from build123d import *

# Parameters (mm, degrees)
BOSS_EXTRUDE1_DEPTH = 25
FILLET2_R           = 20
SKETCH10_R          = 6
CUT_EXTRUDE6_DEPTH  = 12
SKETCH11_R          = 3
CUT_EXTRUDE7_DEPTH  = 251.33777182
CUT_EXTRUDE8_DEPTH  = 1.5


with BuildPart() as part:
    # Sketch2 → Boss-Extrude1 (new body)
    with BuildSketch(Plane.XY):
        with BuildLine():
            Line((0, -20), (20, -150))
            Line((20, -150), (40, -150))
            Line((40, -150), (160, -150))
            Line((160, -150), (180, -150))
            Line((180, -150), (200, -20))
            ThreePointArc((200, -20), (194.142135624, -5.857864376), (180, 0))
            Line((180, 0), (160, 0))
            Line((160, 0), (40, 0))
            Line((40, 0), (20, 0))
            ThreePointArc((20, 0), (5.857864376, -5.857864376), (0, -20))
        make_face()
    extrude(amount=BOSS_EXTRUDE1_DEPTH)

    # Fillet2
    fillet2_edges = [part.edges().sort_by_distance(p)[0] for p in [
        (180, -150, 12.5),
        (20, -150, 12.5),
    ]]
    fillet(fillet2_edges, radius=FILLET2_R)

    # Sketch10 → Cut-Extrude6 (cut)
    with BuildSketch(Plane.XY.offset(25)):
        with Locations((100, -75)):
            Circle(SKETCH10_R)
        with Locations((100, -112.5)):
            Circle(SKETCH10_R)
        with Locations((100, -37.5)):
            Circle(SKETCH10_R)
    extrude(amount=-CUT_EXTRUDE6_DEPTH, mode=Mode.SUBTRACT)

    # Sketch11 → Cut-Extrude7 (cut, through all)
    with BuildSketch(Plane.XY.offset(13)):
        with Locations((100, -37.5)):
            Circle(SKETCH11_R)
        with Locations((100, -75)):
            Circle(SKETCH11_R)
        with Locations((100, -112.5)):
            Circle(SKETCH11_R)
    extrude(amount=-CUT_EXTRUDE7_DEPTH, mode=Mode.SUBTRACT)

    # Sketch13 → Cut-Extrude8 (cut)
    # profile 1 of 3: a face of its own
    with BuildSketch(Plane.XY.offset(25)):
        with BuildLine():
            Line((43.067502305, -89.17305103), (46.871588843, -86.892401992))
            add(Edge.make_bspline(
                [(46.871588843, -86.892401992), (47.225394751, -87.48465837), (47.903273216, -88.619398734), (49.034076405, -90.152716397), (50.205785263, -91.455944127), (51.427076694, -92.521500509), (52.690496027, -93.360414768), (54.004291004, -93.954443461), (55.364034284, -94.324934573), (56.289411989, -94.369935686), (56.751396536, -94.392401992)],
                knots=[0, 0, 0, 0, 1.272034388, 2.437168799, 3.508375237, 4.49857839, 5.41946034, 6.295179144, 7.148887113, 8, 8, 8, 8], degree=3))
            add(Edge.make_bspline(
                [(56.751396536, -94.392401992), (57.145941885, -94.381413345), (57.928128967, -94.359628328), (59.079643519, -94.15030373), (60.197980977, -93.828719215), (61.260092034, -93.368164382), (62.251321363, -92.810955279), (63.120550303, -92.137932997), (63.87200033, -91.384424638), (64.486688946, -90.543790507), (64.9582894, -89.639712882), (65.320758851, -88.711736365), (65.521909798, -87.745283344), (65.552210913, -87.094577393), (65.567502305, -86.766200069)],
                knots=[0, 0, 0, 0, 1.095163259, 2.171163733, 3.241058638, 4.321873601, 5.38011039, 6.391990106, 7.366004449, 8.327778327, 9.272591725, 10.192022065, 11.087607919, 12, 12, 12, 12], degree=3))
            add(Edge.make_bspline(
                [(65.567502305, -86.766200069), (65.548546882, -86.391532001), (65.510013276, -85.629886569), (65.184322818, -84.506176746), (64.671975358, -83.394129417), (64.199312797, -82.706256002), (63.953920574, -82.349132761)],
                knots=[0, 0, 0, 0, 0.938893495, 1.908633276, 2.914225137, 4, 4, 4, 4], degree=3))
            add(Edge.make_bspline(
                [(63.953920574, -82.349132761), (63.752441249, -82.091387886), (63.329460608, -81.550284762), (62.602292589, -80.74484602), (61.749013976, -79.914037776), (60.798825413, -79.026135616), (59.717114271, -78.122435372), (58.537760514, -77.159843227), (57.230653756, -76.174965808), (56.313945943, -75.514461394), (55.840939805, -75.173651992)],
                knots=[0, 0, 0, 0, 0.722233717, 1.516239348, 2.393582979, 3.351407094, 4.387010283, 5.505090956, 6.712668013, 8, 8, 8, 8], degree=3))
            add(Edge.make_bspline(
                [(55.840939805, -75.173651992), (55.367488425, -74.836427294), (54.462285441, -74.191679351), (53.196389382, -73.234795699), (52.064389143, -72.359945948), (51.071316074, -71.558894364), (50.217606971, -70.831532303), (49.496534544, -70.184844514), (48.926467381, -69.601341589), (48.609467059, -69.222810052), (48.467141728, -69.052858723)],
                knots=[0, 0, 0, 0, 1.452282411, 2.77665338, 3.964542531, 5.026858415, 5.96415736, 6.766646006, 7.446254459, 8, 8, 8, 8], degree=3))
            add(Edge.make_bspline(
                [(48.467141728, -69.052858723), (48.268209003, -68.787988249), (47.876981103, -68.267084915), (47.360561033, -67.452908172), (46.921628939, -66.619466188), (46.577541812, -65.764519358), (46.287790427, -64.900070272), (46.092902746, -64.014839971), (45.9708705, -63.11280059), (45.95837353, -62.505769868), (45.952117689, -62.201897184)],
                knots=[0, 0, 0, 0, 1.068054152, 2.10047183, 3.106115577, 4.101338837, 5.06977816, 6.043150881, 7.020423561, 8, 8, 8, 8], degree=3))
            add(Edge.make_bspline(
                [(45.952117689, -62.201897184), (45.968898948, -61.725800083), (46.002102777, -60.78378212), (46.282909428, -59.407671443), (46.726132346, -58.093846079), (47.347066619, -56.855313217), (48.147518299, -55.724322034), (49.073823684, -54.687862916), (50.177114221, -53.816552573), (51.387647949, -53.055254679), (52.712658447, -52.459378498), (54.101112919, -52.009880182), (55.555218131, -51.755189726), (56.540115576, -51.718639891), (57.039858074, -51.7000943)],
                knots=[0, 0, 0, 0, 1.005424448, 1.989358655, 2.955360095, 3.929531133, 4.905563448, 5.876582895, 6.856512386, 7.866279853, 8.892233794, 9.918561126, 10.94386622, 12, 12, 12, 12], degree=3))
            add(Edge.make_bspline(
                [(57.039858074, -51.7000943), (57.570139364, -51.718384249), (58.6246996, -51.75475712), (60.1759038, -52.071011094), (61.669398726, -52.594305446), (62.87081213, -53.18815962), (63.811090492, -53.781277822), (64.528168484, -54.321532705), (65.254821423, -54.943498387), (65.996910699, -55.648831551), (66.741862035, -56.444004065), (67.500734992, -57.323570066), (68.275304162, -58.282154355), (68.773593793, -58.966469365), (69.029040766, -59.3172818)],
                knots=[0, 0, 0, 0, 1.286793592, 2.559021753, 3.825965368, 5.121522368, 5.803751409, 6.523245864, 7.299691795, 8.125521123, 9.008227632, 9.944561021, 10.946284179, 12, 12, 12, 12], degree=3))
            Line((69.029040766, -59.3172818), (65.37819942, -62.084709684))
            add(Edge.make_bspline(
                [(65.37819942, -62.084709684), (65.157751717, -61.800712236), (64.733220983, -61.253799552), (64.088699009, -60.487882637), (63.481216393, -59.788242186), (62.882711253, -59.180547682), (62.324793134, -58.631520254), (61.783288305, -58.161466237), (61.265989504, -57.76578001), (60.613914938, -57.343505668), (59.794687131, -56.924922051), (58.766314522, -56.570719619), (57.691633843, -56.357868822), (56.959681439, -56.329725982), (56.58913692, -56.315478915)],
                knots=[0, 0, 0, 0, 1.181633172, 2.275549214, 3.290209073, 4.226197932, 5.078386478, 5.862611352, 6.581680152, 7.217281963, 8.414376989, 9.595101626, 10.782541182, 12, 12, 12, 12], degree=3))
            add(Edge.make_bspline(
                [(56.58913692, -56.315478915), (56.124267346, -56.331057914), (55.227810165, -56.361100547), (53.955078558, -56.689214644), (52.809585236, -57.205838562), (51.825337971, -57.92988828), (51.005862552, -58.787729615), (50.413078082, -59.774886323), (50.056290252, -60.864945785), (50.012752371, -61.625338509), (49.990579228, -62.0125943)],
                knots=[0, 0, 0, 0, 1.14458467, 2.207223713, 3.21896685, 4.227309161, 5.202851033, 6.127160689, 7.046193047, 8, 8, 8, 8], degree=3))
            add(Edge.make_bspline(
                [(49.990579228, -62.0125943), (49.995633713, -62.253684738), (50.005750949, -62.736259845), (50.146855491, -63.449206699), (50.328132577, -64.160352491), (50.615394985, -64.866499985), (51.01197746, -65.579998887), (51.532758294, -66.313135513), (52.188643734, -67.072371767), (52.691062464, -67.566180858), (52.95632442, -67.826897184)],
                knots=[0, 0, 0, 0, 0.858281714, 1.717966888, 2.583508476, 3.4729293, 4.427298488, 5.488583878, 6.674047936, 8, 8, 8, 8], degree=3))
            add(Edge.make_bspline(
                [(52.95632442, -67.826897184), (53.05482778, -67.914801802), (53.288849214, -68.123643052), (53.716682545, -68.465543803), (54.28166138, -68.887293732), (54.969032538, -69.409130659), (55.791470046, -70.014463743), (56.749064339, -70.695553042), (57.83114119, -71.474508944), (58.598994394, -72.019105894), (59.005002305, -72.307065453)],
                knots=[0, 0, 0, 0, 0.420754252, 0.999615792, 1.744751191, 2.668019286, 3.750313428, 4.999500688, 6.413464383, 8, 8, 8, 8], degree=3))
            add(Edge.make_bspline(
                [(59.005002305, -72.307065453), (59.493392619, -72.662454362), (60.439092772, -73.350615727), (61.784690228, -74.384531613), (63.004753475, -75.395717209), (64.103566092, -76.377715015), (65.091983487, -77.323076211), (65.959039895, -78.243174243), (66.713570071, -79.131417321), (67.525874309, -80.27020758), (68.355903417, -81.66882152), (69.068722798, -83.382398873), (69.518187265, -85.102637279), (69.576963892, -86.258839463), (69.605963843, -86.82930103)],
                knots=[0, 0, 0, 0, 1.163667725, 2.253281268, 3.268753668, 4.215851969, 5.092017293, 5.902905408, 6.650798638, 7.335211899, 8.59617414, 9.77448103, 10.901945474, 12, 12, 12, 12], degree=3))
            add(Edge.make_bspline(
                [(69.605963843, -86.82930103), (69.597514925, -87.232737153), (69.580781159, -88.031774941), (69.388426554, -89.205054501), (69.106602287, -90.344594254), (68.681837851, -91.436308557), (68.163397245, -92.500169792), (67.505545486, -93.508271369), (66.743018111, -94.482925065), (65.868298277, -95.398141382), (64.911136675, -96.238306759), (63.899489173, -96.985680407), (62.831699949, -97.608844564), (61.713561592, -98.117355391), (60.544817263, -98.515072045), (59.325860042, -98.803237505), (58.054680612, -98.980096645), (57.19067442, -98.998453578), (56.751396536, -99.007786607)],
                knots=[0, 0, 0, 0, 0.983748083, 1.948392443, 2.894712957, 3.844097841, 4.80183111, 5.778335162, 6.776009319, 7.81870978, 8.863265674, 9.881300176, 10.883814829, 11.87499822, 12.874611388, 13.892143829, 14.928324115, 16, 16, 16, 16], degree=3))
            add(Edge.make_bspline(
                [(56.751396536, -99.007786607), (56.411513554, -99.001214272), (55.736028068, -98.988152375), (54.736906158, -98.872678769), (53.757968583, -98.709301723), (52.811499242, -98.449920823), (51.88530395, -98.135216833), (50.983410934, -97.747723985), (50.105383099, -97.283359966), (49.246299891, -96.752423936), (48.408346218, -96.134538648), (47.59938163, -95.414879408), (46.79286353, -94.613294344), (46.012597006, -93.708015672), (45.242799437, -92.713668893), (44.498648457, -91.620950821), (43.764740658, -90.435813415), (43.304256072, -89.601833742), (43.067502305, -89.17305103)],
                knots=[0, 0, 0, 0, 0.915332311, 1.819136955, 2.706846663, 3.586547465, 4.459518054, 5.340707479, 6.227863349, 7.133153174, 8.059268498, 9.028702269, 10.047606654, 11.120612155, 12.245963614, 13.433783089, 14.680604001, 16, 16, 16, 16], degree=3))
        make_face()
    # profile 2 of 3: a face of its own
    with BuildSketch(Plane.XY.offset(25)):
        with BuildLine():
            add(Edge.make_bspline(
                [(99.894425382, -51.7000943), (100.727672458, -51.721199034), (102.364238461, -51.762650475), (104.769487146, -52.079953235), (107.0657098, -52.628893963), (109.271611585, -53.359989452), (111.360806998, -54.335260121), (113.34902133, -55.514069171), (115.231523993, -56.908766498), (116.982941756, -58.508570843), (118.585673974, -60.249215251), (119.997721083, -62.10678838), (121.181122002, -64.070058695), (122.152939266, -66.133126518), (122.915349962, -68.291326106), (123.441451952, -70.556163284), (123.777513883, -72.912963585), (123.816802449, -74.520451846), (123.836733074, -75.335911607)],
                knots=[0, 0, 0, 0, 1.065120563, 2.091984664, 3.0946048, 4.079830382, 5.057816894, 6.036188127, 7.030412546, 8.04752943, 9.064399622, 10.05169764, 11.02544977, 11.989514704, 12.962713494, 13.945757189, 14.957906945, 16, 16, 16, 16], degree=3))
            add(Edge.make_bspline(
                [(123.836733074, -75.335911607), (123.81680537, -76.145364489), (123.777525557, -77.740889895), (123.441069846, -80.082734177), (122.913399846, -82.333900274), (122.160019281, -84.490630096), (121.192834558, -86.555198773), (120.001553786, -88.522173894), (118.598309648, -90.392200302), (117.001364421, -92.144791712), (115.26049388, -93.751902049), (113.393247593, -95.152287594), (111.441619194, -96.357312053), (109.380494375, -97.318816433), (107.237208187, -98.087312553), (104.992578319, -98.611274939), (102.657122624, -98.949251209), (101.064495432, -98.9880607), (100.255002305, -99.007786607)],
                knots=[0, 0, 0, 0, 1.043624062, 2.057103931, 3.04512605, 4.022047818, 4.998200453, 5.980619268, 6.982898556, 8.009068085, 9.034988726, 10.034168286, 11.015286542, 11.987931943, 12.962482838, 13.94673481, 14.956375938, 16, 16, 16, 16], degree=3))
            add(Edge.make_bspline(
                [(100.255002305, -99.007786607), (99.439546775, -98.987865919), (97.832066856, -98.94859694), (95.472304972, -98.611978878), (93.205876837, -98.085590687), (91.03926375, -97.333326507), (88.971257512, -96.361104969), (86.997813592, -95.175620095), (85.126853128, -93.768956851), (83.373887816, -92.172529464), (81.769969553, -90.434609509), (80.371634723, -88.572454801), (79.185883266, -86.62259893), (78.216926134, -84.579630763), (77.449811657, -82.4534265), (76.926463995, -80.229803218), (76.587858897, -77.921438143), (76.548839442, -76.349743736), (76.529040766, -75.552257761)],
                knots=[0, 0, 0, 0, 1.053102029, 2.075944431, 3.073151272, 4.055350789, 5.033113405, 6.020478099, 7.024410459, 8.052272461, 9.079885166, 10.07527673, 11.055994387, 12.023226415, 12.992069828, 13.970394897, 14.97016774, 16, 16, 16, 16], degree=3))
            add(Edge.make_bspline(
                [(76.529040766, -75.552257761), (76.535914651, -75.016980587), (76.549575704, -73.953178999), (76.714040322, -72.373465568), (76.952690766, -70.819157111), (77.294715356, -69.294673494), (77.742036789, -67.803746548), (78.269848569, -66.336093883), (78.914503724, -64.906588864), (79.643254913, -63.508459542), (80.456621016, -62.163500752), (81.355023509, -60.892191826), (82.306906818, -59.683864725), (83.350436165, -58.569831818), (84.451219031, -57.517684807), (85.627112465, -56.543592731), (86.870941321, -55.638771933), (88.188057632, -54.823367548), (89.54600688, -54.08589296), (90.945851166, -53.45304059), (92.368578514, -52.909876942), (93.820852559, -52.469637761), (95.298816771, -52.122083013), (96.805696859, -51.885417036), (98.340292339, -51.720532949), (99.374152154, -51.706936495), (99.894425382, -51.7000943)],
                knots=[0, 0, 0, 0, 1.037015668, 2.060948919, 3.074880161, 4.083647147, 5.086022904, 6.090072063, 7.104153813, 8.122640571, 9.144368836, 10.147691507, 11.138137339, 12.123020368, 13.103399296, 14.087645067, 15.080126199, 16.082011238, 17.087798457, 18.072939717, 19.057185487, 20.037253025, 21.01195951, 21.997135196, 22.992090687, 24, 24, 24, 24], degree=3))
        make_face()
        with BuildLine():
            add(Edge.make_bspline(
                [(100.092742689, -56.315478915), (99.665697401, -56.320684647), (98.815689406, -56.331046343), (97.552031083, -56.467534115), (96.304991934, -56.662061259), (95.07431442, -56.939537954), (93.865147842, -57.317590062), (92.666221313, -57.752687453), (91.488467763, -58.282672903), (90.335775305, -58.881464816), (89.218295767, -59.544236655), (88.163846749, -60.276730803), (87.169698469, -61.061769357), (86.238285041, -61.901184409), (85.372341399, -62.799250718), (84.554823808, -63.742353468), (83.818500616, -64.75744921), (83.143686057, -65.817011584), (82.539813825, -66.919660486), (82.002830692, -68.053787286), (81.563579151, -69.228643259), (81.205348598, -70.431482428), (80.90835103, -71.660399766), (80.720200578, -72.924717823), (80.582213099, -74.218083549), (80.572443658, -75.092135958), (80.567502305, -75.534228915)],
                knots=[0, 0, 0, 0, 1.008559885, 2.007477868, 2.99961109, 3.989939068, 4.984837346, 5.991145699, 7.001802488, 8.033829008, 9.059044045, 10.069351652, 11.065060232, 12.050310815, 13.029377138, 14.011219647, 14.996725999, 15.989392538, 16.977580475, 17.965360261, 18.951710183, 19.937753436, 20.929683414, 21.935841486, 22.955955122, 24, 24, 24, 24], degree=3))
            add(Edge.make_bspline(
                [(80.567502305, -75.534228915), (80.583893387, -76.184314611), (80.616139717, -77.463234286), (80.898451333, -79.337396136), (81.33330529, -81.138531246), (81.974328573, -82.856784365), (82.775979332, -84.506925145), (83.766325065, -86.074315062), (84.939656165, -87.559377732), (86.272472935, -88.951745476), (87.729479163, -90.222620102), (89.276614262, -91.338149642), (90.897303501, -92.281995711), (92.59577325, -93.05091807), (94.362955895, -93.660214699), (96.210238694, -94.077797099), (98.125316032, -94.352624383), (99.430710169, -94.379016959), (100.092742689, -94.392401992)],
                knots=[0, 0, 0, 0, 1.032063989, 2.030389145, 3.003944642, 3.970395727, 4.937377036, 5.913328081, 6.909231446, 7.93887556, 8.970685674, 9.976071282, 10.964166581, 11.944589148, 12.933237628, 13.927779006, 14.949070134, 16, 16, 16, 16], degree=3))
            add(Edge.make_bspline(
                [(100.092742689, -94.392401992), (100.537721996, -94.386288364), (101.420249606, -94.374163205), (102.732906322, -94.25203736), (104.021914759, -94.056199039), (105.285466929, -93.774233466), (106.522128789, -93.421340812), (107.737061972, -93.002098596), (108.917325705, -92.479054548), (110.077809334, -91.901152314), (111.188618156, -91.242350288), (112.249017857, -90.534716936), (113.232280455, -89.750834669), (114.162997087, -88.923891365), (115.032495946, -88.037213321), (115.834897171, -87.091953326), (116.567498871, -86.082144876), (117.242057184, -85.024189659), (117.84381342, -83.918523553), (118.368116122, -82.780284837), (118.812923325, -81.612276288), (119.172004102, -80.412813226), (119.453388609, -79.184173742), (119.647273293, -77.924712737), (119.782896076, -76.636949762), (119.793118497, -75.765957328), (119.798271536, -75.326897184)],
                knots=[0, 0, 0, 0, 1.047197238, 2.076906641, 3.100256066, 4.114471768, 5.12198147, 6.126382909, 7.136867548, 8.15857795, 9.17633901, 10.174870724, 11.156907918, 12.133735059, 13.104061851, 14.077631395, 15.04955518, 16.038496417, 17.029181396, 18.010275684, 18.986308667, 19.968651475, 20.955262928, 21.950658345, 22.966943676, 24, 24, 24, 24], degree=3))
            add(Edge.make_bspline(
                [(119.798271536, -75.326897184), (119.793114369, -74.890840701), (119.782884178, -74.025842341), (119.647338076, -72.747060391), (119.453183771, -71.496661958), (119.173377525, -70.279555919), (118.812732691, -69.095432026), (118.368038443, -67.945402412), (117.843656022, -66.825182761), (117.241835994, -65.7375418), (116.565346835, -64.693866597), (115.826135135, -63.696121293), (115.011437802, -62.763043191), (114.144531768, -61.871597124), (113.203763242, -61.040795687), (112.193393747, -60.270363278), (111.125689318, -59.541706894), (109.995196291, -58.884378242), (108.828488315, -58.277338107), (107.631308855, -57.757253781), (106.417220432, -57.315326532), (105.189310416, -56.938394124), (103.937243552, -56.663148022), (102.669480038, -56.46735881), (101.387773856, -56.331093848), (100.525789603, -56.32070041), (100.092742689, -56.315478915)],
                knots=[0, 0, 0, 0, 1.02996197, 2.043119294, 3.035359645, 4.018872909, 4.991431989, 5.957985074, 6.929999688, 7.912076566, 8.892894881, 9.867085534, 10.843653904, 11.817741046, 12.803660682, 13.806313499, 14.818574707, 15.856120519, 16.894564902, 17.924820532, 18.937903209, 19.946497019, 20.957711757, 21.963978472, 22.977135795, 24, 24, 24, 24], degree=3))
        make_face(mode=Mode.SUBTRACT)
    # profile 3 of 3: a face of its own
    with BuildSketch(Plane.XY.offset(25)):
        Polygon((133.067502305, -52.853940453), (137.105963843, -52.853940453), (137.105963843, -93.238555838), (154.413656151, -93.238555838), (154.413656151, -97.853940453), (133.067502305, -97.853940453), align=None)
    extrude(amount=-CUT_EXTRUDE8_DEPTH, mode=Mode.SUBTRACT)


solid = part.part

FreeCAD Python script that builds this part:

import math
import FreeCAD as App
import Part
import Sketcher
Q = App.Units.Quantity


def edges_at(feature, points):
    """Names of the edges that pass closest to the given points."""
    edges = feature.Shape.Edges
    near = lambda p: min(range(len(edges)), key=lambda i: edges[i].distToShape(Part.Vertex(*p))[0])
    return sorted({f"Edge{near(p) + 1}" for p in points})

doc = App.newDocument("Part")
body = doc.addObject("PartDesign::Body", "Body")

# Sketch on XY plane
sketch1 = body.newObject("Sketcher::SketchObject", "Sketch")
sketch1.AttachmentSupport = (doc.getObject("XY_Plane"), [""])
sketch1.MapMode = "FlatFace"
sketch1.addGeometry(Part.LineSegment(App.Vector(0, -20, 0), App.Vector(20, -150, 0)), False)
sketch1.addGeometry(Part.LineSegment(App.Vector(20, -150, 0), App.Vector(180, -150, 0)), False)
sketch1.addGeometry(Part.LineSegment(App.Vector(180, -150, 0), App.Vector(200, -20, 0)), False)
sketch1.addGeometry(Part.ArcOfCircle(Part.Circle(App.Vector(180, -20, 0), App.Vector(0, 0, 1), 20), math.radians(0), math.radians(90)), False)
sketch1.addGeometry(Part.LineSegment(App.Vector(180, 0, 0), App.Vector(20, 0, 0)), False)
sketch1.addGeometry(Part.ArcOfCircle(Part.Circle(App.Vector(20, -20, 0), App.Vector(0, 0, 1), 20), math.radians(90), math.radians(180)), False)
sketch1.addConstraint(Sketcher.Constraint("Coincident", 0, 2, 1, 1))
sketch1.addConstraint(Sketcher.Constraint("Coincident", 1, 2, 2, 1))
sketch1.addConstraint(Sketcher.Constraint("Coincident", 2, 2, 3, 1))
sketch1.addConstraint(Sketcher.Constraint("Tangent", 3, 2, 4, 1))
sketch1.addConstraint(Sketcher.Constraint("Tangent", 4, 2, 5, 1))
sketch1.addConstraint(Sketcher.Constraint("Coincident", 5, 2, 0, 1))
sketch1.addConstraint(Sketcher.Constraint("Horizontal", 1))
sketch1.addConstraint(Sketcher.Constraint("Horizontal", 4))
sketch1.addConstraint(Sketcher.Constraint("Equal", 3, 5))
sketch1.addConstraint(Sketcher.Constraint("PointOnObject", 3, 2, -1))
sketch1.addConstraint(Sketcher.Constraint("PointOnObject", 5, 2, -2))
sketch1.addConstraint(Sketcher.Constraint("Horizontal", 5, 3, 2, 2))
sketch1.addConstraint(Sketcher.Constraint("Horizontal", 2, 2, 5, 2))
sketch1.addConstraint(Sketcher.Constraint("Vertical", 5, 3, 0, 2))
sketch1.addConstraint(Sketcher.Constraint("Vertical", 3, 3, 1, 2))
sketch1.addConstraint(Sketcher.Constraint("Radius", 3, Q("20 mm")))
sketch1.addConstraint(Sketcher.Constraint("DistanceX", 1, 1, 1, 2, Q("160 mm")))
sketch1.addConstraint(Sketcher.Constraint("DistanceY", 0, 2, -1, 1, Q("150 mm")))
pad1 = body.newObject("PartDesign::Pad", "Pad")
pad1.Profile = sketch1
pad1.Length = 25
doc.recompute()

fillet = body.newObject("PartDesign::Fillet", "Fillet")
fillet.Base = (pad1, edges_at(pad1, [(180, -150, 12.5), (20, -150, 12.5)]))
fillet.Radius = 20

# Sketch on XY plane
sketch2 = body.newObject("Sketcher::SketchObject", "Sketch001")
sketch2.AttachmentSupport = (doc.getObject("XY_Plane"), [""])
sketch2.MapMode = "FlatFace"
sketch2.AttachmentOffset = App.Placement(App.Vector(0, 0, 25), App.Rotation())
sketch2.addGeometry(Part.Circle(App.Vector(100, -75, 0), App.Vector(0, 0, 1), 6), False)
sketch2.addGeometry(Part.Circle(App.Vector(100, -112.5, 0), App.Vector(0, 0, 1), 6), False)
sketch2.addGeometry(Part.Circle(App.Vector(100, -37.5, 0), App.Vector(0, 0, 1), 6), False)
sketch2.addConstraint(Sketcher.Constraint("Equal", 0, 1))
sketch2.addConstraint(Sketcher.Constraint("Equal", 1, 2))
sketch2.addConstraint(Sketcher.Constraint("Vertical", 0, 3, 1, 3))
sketch2.addConstraint(Sketcher.Constraint("Vertical", 1, 3, 2, 3))
sketch2.addConstraint(Sketcher.Constraint("Diameter", 0, Q("12 mm")))
sketch2.addConstraint(Sketcher.Constraint("DistanceX", -1, 1, 0, 3, Q("100 mm")))
sketch2.addConstraint(Sketcher.Constraint("DistanceY", 0, 3, -1, 1, Q("75 mm")))
sketch2.addConstraint(Sketcher.Constraint("DistanceY", 1, 3, 2, 3, Q("75 mm")))
sketch2.addConstraint(Sketcher.Constraint("DistanceY", 1, 3, -1, 1, Q("112.5 mm")))
pocket1 = body.newObject("PartDesign::Pocket", "Pocket")
pocket1.Profile = sketch2
pocket1.Length = 12

# Sketch on XY plane
sketch3 = body.newObject("Sketcher::SketchObject", "Sketch002")
sketch3.AttachmentSupport = (doc.getObject("XY_Plane"), [""])
sketch3.MapMode = "FlatFace"
sketch3.AttachmentOffset = App.Placement(App.Vector(0, 0, 13), App.Rotation())
sketch3.addGeometry(Part.Circle(App.Vector(100, -37.5, 0), App.Vector(0, 0, 1), 3), False)
sketch3.addGeometry(Part.Circle(App.Vector(100, -75, 0), App.Vector(0, 0, 1), 3), False)
sketch3.addGeometry(Part.Circle(App.Vector(100, -112.5, 0), App.Vector(0, 0, 1), 3), False)
sketch3.addConstraint(Sketcher.Constraint("Equal", 0, 1))
sketch3.addConstraint(Sketcher.Constraint("Equal", 1, 2))
sketch3.addConstraint(Sketcher.Constraint("Vertical", 0, 3, 1, 3))
sketch3.addConstraint(Sketcher.Constraint("Vertical", 1, 3, 2, 3))
sketch3.addConstraint(Sketcher.Constraint("Diameter", 0, Q("6 mm")))
sketch3.addConstraint(Sketcher.Constraint("DistanceX", -1, 1, 0, 3, Q("100 mm")))
sketch3.addConstraint(Sketcher.Constraint("DistanceY", 1, 3, -1, 1, Q("75 mm")))
sketch3.addConstraint(Sketcher.Constraint("DistanceY", 2, 3, 0, 3, Q("75 mm")))
sketch3.addConstraint(Sketcher.Constraint("DistanceY", 0, 3, -1, 1, Q("37.5 mm")))
pocket2 = body.newObject("PartDesign::Pocket", "Pocket001")
pocket2.Profile = sketch3
pocket2.Type = "ThroughAll"

# Sketch on XY plane
sketch4 = body.newObject("Sketcher::SketchObject", "Sketch003")
sketch4.AttachmentSupport = (doc.getObject("XY_Plane"), [""])
sketch4.MapMode = "FlatFace"
sketch4.AttachmentOffset = App.Placement(App.Vector(0, 0, 25), App.Rotation())
sketch4.addGeometry(Part.LineSegment(App.Vector(46.871589, -86.892402, 0), App.Vector(43.067502, -89.173051, 0)), False)
sketch4.addGeometry(Part.BSplineCurve([App.Vector(56.751397, -99.007787, 0), App.Vector(56.411514, -99.001214, 0), App.Vector(55.736028, -98.988152, 0), App.Vector(54.736906, -98.872679, 0), App.Vector(53.757969, -98.709302, 0), App.Vector(52.811499, -98.449921, 0), App.Vector(51.885304, -98.135217, 0), App.Vector(50.983411, -97.747724, 0), App.Vector(50.105383, -97.28336, 0), App.Vector(49.2463, -96.752424, 0), App.Vector(48.408346, -96.134539, 0), App.Vector(47.599382, -95.414879, 0), App.Vector(46.792864, -94.613294, 0), App.Vector(46.012597, -93.708016, 0), App.Vector(45.242799, -92.713669, 0), App.Vector(44.498648, -91.620951, 0), App.Vector(43.764741, -90.435813, 0), App.Vector(43.304256, -89.601834, 0), App.Vector(43.067502, -89.173051, 0)], [4, 1, 1, 1, 1, 1, 1, 1, 1, 1, 1, 1, 1, 1, 1, 1, 4], [0, 0.915332311, 1.819136955, 2.706846663, 3.586547465, 4.459518054, 5.340707479, 6.227863349, 7.133153174, 8.059268498, 9.028702269, 10.047606654, 11.120612155, 12.245963614, 13.433783089, 14.680604001, 16], False, 3, [1, 1, 1, 1, 1, 1, 1, 1, 1, 1, 1, 1, 1, 1, 1, 1, 1, 1, 1], False), False)
sketch4.addGeometry(Part.BSplineCurve([App.Vector(69.605964, -86.829301, 0), App.Vector(69.597515, -87.232737, 0), App.Vector(69.580781, -88.031775, 0), App.Vector(69.388427, -89.205055, 0), App.Vector(69.106602, -90.344594, 0), App.Vector(68.681838, -91.436309, 0), App.Vector(68.163397, -92.50017, 0), App.Vector(67.505545, -93.508271, 0), App.Vector(66.743018, -94.482925, 0), App.Vector(65.868298, -95.398141, 0), App.Vector(64.911137, -96.238307, 0), App.Vector(63.899489, -96.98568, 0), App.Vector(62.8317, -97.608845, 0), App.Vector(61.713562, -98.117355, 0), App.Vector(60.544817, -98.515072, 0), App.Vector(59.32586, -98.803238, 0), App.Vector(58.054681, -98.980097, 0), App.Vector(57.190674, -98.998454, 0), App.Vector(56.751397, -99.007787, 0)], [4, 1, 1, 1, 1, 1, 1, 1, 1, 1, 1, 1, 1, 1, 1, 1, 4], [0, 0.983748083, 1.948392443, 2.894712957, 3.844097841, 4.80183111, 5.778335162, 6.776009319, 7.81870978, 8.863265674, 9.881300176, 10.883814829, 11.87499822, 12.874611388, 13.892143829, 14.928324115, 16], False, 3, [1, 1, 1, 1, 1, 1, 1, 1, 1, 1, 1, 1, 1, 1, 1, 1, 1, 1, 1], False), False)
sketch4.addGeometry(Part.BSplineCurve([App.Vector(59.005002, -72.307065, 0), App.Vector(59.493393, -72.662454, 0), App.Vector(60.439093, -73.350616, 0), App.Vector(61.78469, -74.384532, 0), App.Vector(63.004753, -75.395717, 0), App.Vector(64.103566, -76.377715, 0), App.Vector(65.091983, -77.323076, 0), App.Vector(65.95904, -78.243174, 0), App.Vector(66.71357, -79.131417, 0), App.Vector(67.525874, -80.270208, 0), App.Vector(68.355903, -81.668822, 0), App.Vector(69.068723, -83.382399, 0), App.Vector(69.518187, -85.102637, 0), App.Vector(69.576964, -86.258839, 0), App.Vector(69.605964, -86.829301, 0)], [4, 1, 1, 1, 1, 1, 1, 1, 1, 1, 1, 1, 4], [0, 1.163667725, 2.253281268, 3.268753668, 4.215851969, 5.092017293, 5.902905408, 6.650798638, 7.335211899, 8.59617414, 9.77448103, 10.901945474, 12], False, 3, [1, 1, 1, 1, 1, 1, 1, 1, 1, 1, 1, 1, 1, 1, 1], False), False)
sketch4.addGeometry(Part.BSplineCurve([App.Vector(52.956324, -67.826897, 0), App.Vector(53.054828, -67.914802, 0), App.Vector(53.288849, -68.123643, 0), App.Vector(53.716683, -68.465544, 0), App.Vector(54.281661, -68.887294, 0), App.Vector(54.969033, -69.409131, 0), App.Vector(55.79147, -70.014464, 0), App.Vector(56.749064, -70.695553, 0), App.Vector(57.831141, -71.474509, 0), App.Vector(58.598994, -72.019106, 0), App.Vector(59.005002, -72.307065, 0)], [4, 1, 1, 1, 1, 1, 1, 1, 4], [0, 0.420754252, 0.999615792, 1.744751191, 2.668019286, 3.750313428, 4.999500688, 6.413464383, 8], False, 3, [1, 1, 1, 1, 1, 1, 1, 1, 1, 1, 1], False), False)
sketch4.addGeometry(Part.BSplineCurve([App.Vector(49.990579, -62.012594, 0), App.Vector(49.995634, -62.253685, 0), App.Vector(50.005751, -62.73626, 0), App.Vector(50.146855, -63.449207, 0), App.Vector(50.328133, -64.160352, 0), App.Vector(50.615395, -64.8665, 0), App.Vector(51.011977, -65.579999, 0), App.Vector(51.532758, -66.313136, 0), App.Vector(52.188644, -67.072372, 0), App.Vector(52.691062, -67.566181, 0), App.Vector(52.956324, -67.826897, 0)], [4, 1, 1, 1, 1, 1, 1, 1, 4], [0, 0.858281714, 1.717966888, 2.583508476, 3.4729293, 4.427298488, 5.488583878, 6.674047936, 8], False, 3, [1, 1, 1, 1, 1, 1, 1, 1, 1, 1, 1], False), False)
sketch4.addGeometry(Part.BSplineCurve([App.Vector(56.589137, -56.315479, 0), App.Vector(56.124267, -56.331058, 0), App.Vector(55.22781, -56.361101, 0), App.Vector(53.955079, -56.689215, 0), App.Vector(52.809585, -57.205839, 0), App.Vector(51.825338, -57.929888, 0), App.Vector(51.005863, -58.78773, 0), App.Vector(50.413078, -59.774886, 0), App.Vector(50.05629, -60.864946, 0), App.Vector(50.012752, -61.625339, 0), App.Vector(49.990579, -62.012594, 0)], [4, 1, 1, 1, 1, 1, 1, 1, 4], [0, 1.14458467, 2.207223713, 3.21896685, 4.227309161, 5.202851033, 6.127160689, 7.046193047, 8], False, 3, [1, 1, 1, 1, 1, 1, 1, 1, 1, 1, 1], False), False)
sketch4.addGeometry(Part.BSplineCurve([App.Vector(65.378199, -62.08471, 0), App.Vector(65.157752, -61.800712, 0), App.Vector(64.733221, -61.2538, 0), App.Vector(64.088699, -60.487883, 0), App.Vector(63.481216, -59.788242, 0), App.Vector(62.882711, -59.180548, 0), App.Vector(62.324793, -58.63152, 0), App.Vector(61.783288, -58.161466, 0), App.Vector(61.26599, -57.76578, 0), App.Vector(60.613915, -57.343506, 0), App.Vector(59.794687, -56.924922, 0), App.Vector(58.766315, -56.57072, 0), App.Vector(57.691634, -56.357869, 0), App.Vector(56.959681, -56.329726, 0), App.Vector(56.589137, -56.315479, 0)], [4, 1, 1, 1, 1, 1, 1, 1, 1, 1, 1, 1, 4], [0, 1.181633172, 2.275549214, 3.290209073, 4.226197932, 5.078386478, 5.862611352, 6.581680152, 7.217281963, 8.414376989, 9.595101626, 10.782541182, 12], False, 3, [1, 1, 1, 1, 1, 1, 1, 1, 1, 1, 1, 1, 1, 1, 1], False), False)
sketch4.addGeometry(Part.LineSegment(App.Vector(65.378199, -62.08471, 0), App.Vector(69.029041, -59.317282, 0)), False)
sketch4.addGeometry(Part.BSplineCurve([App.Vector(57.039858, -51.700094, 0), App.Vector(57.570139, -51.718384, 0), App.Vector(58.6247, -51.754757, 0), App.Vector(60.175904, -52.071011, 0), App.Vector(61.669399, -52.594305, 0), App.Vector(62.870812, -53.18816, 0), App.Vector(63.81109, -53.781278, 0), App.Vector(64.528168, -54.321533, 0), App.Vector(65.254821, -54.943498, 0), App.Vector(65.996911, -55.648832, 0), App.Vector(66.741862, -56.444004, 0), App.Vector(67.500735, -57.32357, 0), App.Vector(68.275304, -58.282154, 0), App.Vector(68.773594, -58.966469, 0), App.Vector(69.029041, -59.317282, 0)], [4, 1, 1, 1, 1, 1, 1, 1, 1, 1, 1, 1, 4], [0, 1.286793592, 2.559021753, 3.825965368, 5.121522368, 5.803751409, 6.523245864, 7.299691795, 8.125521123, 9.008227632, 9.944561021, 10.946284179, 12], False, 3, [1, 1, 1, 1, 1, 1, 1, 1, 1, 1, 1, 1, 1, 1, 1], False), False)
sketch4.addGeometry(Part.BSplineCurve([App.Vector(45.952118, -62.201897, 0), App.Vector(45.968899, -61.7258, 0), App.Vector(46.002103, -60.783782, 0), App.Vector(46.282909, -59.407671, 0), App.Vector(46.726132, -58.093846, 0), App.Vector(47.347067, -56.855313, 0), App.Vector(48.147518, -55.724322, 0), App.Vector(49.073824, -54.687863, 0), App.Vector(50.177114, -53.816553, 0), App.Vector(51.387648, -53.055255, 0), App.Vector(52.712658, -52.459378, 0), App.Vector(54.101113, -52.00988, 0), App.Vector(55.555218, -51.75519, 0), App.Vector(56.540116, -51.71864, 0), App.Vector(57.039858, -51.700094, 0)], [4, 1, 1, 1, 1, 1, 1, 1, 1, 1, 1, 1, 4], [0, 1.005424448, 1.989358655, 2.955360095, 3.929531133, 4.905563448, 5.876582895, 6.856512386, 7.866279853, 8.892233794, 9.918561126, 10.94386622, 12], False, 3, [1, 1, 1, 1, 1, 1, 1, 1, 1, 1, 1, 1, 1, 1, 1], False), False)
sketch4.addGeometry(Part.BSplineCurve([App.Vector(48.467142, -69.052859, 0), App.Vector(48.268209, -68.787988, 0), App.Vector(47.876981, -68.267085, 0), App.Vector(47.360561, -67.452908, 0), App.Vector(46.921629, -66.619466, 0), App.Vector(46.577542, -65.764519, 0), App.Vector(46.28779, -64.90007, 0), App.Vector(46.092903, -64.01484, 0), App.Vector(45.97087, -63.112801, 0), App.Vector(45.958374, -62.50577, 0), App.Vector(45.952118, -62.201897, 0)], [4, 1, 1, 1, 1, 1, 1, 1, 4], [0, 1.068054152, 2.10047183, 3.106115577, 4.101338837, 5.06977816, 6.043150881, 7.020423561, 8], False, 3, [1, 1, 1, 1, 1, 1, 1, 1, 1, 1, 1], False), False)
sketch4.addGeometry(Part.BSplineCurve([App.Vector(55.84094, -75.173652, 0), App.Vector(55.367488, -74.836427, 0), App.Vector(54.462285, -74.191679, 0), App.Vector(53.196389, -73.234796, 0), App.Vector(52.064389, -72.359946, 0), App.Vector(51.071316, -71.558894, 0), App.Vector(50.217607, -70.831532, 0), App.Vector(49.496535, -70.184845, 0), App.Vector(48.926467, -69.601342, 0), App.Vector(48.609467, -69.22281, 0), App.Vector(48.467142, -69.052859, 0)], [4, 1, 1, 1, 1, 1, 1, 1, 4], [0, 1.452282411, 2.77665338, 3.964542531, 5.026858415, 5.96415736, 6.766646006, 7.446254459, 8], False, 3, [1, 1, 1, 1, 1, 1, 1, 1, 1, 1, 1], False), False)
sketch4.addGeometry(Part.BSplineCurve([App.Vector(63.953921, -82.349133, 0), App.Vector(63.752441, -82.091388, 0), App.Vector(63.329461, -81.550285, 0), App.Vector(62.602293, -80.744846, 0), App.Vector(61.749014, -79.914038, 0), App.Vector(60.798825, -79.026136, 0), App.Vector(59.717114, -78.122435, 0), App.Vector(58.537761, -77.159843, 0), App.Vector(57.230654, -76.174966, 0), App.Vector(56.313946, -75.514461, 0), App.Vector(55.84094, -75.173652, 0)], [4, 1, 1, 1, 1, 1, 1, 1, 4], [0, 0.722233717, 1.516239348, 2.393582979, 3.351407094, 4.387010283, 5.505090956, 6.712668013, 8], False, 3, [1, 1, 1, 1, 1, 1, 1, 1, 1, 1, 1], False), False)
sketch4.addGeometry(Part.BSplineCurve([App.Vector(65.567502, -86.7662, 0), App.Vector(65.548547, -86.391532, 0), App.Vector(65.510013, -85.629887, 0), App.Vector(65.184323, -84.506177, 0), App.Vector(64.671975, -83.394129, 0), App.Vector(64.199313, -82.706256, 0), App.Vector(63.953921, -82.349133, 0)], [4, 1, 1, 1, 4], [0, 0.938893495, 1.908633276, 2.914225137, 4], False, 3, [1, 1, 1, 1, 1, 1, 1], False), False)
sketch4.addGeometry(Part.BSplineCurve([App.Vector(56.751397, -94.392402, 0), App.Vector(57.145942, -94.381413, 0), App.Vector(57.928129, -94.359628, 0), App.Vector(59.079644, -94.150304, 0), App.Vector(60.197981, -93.828719, 0), App.Vector(61.260092, -93.368164, 0), App.Vector(62.251321, -92.810955, 0), App.Vector(63.12055, -92.137933, 0), App.Vector(63.872, -91.384425, 0), App.Vector(64.486689, -90.543791, 0), App.Vector(64.958289, -89.639713, 0), App.Vector(65.320759, -88.711736, 0), App.Vector(65.52191, -87.745283, 0), App.Vector(65.552211, -87.094577, 0), App.Vector(65.567502, -86.7662, 0)], [4, 1, 1, 1, 1, 1, 1, 1, 1, 1, 1, 1, 4], [0, 1.095163259, 2.171163733, 3.241058638, 4.321873601, 5.38011039, 6.391990106, 7.366004449, 8.327778327, 9.272591725, 10.192022065, 11.087607919, 12], False, 3, [1, 1, 1, 1, 1, 1, 1, 1, 1, 1, 1, 1, 1, 1, 1], False), False)
sketch4.addGeometry(Part.BSplineCurve([App.Vector(46.871589, -86.892402, 0), App.Vector(47.225395, -87.484658, 0), App.Vector(47.903273, -88.619399, 0), App.Vector(49.034076, -90.152716, 0), App.Vector(50.205785, -91.455944, 0), App.Vector(51.427077, -92.521501, 0), App.Vector(52.690496, -93.360415, 0), App.Vector(54.004291, -93.954443, 0), App.Vector(55.364034, -94.324935, 0), App.Vector(56.289412, -94.369936, 0), App.Vector(56.751397, -94.392402, 0)], [4, 1, 1, 1, 1, 1, 1, 1, 4], [0, 1.272034388, 2.437168799, 3.508375237, 4.49857839, 5.41946034, 6.295179144, 7.148887113, 8], False, 3, [1, 1, 1, 1, 1, 1, 1, 1, 1, 1, 1], False), False)
sketch4.addGeometry(Part.BSplineCurve([App.Vector(99.894425, -51.700094, 0), App.Vector(100.727672, -51.721199, 0), App.Vector(102.364238, -51.76265, 0), App.Vector(104.769487, -52.079953, 0), App.Vector(107.06571, -52.628894, 0), App.Vector(109.271612, -53.359989, 0), App.Vector(111.360807, -54.33526, 0), App.Vector(113.349021, -55.514069, 0), App.Vector(115.231524, -56.908766, 0), App.Vector(116.982942, -58.508571, 0), App.Vector(118.585674, -60.249215, 0), App.Vector(119.997721, -62.106788, 0), App.Vector(121.181122, -64.070059, 0), App.Vector(122.152939, -66.133127, 0), App.Vector(122.91535, -68.291326, 0), App.Vector(123.441452, -70.556163, 0), App.Vector(123.777514, -72.912964, 0), App.Vector(123.816802, -74.520452, 0), App.Vector(123.836733, -75.335912, 0)], [4, 1, 1, 1, 1, 1, 1, 1, 1, 1, 1, 1, 1, 1, 1, 1, 4], [0, 1.065120563, 2.091984664, 3.0946048, 4.079830382, 5.057816894, 6.036188127, 7.030412546, 8.04752943, 9.064399622, 10.05169764, 11.02544977, 11.989514704, 12.962713494, 13.945757189, 14.957906945, 16], False, 3, [1, 1, 1, 1, 1, 1, 1, 1, 1, 1, 1, 1, 1, 1, 1, 1, 1, 1, 1], False), False)
sketch4.addGeometry(Part.BSplineCurve([App.Vector(76.529041, -75.552258, 0), App.Vector(76.535915, -75.016981, 0), App.Vector(76.549576, -73.953179, 0), App.Vector(76.71404, -72.373466, 0), App.Vector(76.952691, -70.819157, 0), App.Vector(77.294715, -69.294673, 0), App.Vector(77.742037, -67.803747, 0), App.Vector(78.269849, -66.336094, 0), App.Vector(78.914504, -64.906589, 0), App.Vector(79.643255, -63.50846, 0), App.Vector(80.456621, -62.163501, 0), App.Vector(81.355024, -60.892192, 0), App.Vector(82.306907, -59.683865, 0), App.Vector(83.350436, -58.569832, 0), App.Vector(84.451219, -57.517685, 0), App.Vector(85.627112, -56.543593, 0), App.Vector(86.870941, -55.638772, 0), App.Vector(88.188058, -54.823368, 0), App.Vector(89.546007, -54.085893, 0), App.Vector(90.945851, -53.453041, 0), App.Vector(92.368579, -52.909877, 0), App.Vector(93.820853, -52.469638, 0), App.Vector(95.298817, -52.122083, 0), App.Vector(96.805697, -51.885417, 0), App.Vector(98.340292, -51.720533, 0), App.Vector(99.374152, -51.706936, 0), App.Vector(99.894425, -51.700094, 0)], [4, 1, 1, 1, 1, 1, 1, 1, 1, 1, 1, 1, 1, 1, 1, 1, 1, 1, 1, 1, 1, 1, 1, 1, 4], [0, 1.037015668, 2.060948919, 3.074880161, 4.083647147, 5.086022904, 6.090072063, 7.104153813, 8.122640571, 9.144368836, 10.147691507, 11.138137339, 12.123020368, 13.103399296, 14.087645067, 15.080126199, 16.082011238, 17.087798457, 18.072939717, 19.057185487, 20.037253025, 21.01195951, 21.997135196, 22.992090687, 24], False, 3, [1, 1, 1, 1, 1, 1, 1, 1, 1, 1, 1, 1, 1, 1, 1, 1, 1, 1, 1, 1, 1, 1, 1, 1, 1, 1, 1], False), False)
sketch4.addGeometry(Part.BSplineCurve([App.Vector(100.255002, -99.007787, 0), App.Vector(99.439547, -98.987866, 0), App.Vector(97.832067, -98.948597, 0), App.Vector(95.472305, -98.611979, 0), App.Vector(93.205877, -98.085591, 0), App.Vector(91.039264, -97.333327, 0), App.Vector(88.971258, -96.361105, 0), App.Vector(86.997814, -95.17562, 0), App.Vector(85.126853, -93.768957, 0), App.Vector(83.373888, -92.172529, 0), App.Vector(81.76997, -90.43461, 0), App.Vector(80.371635, -88.572455, 0), App.Vector(79.185883, -86.622599, 0), App.Vector(78.216926, -84.579631, 0), App.Vector(77.449812, -82.453427, 0), App.Vector(76.926464, -80.229803, 0), App.Vector(76.587859, -77.921438, 0), App.Vector(76.548839, -76.349744, 0), App.Vector(76.529041, -75.552258, 0)], [4, 1, 1, 1, 1, 1, 1, 1, 1, 1, 1, 1, 1, 1, 1, 1, 4], [0, 1.053102029, 2.075944431, 3.073151272, 4.055350789, 5.033113405, 6.020478099, 7.024410459, 8.052272461, 9.079885166, 10.07527673, 11.055994387, 12.023226415, 12.992069828, 13.970394897, 14.97016774, 16], False, 3, [1, 1, 1, 1, 1, 1, 1, 1, 1, 1, 1, 1, 1, 1, 1, 1, 1, 1, 1], False), False)
sketch4.addGeometry(Part.BSplineCurve([App.Vector(123.836733, -75.335912, 0), App.Vector(123.816805, -76.145364, 0), App.Vector(123.777526, -77.74089, 0), App.Vector(123.44107, -80.082734, 0), App.Vector(122.9134, -82.3339, 0), App.Vector(122.160019, -84.49063, 0), App.Vector(121.192835, -86.555199, 0), App.Vector(120.001554, -88.522174, 0), App.Vector(118.59831, -90.3922, 0), App.Vector(117.001364, -92.144792, 0), App.Vector(115.260494, -93.751902, 0), App.Vector(113.393248, -95.152288, 0), App.Vector(111.441619, -96.357312, 0), App.Vector(109.380494, -97.318816, 0), App.Vector(107.237208, -98.087313, 0), App.Vector(104.992578, -98.611275, 0), App.Vector(102.657123, -98.949251, 0), App.Vector(101.064495, -98.988061, 0), App.Vector(100.255002, -99.007787, 0)], [4, 1, 1, 1, 1, 1, 1, 1, 1, 1, 1, 1, 1, 1, 1, 1, 4], [0, 1.043624062, 2.057103931, 3.04512605, 4.022047818, 4.998200453, 5.980619268, 6.982898556, 8.009068085, 9.034988726, 10.034168286, 11.015286542, 11.987931943, 12.962482838, 13.94673481, 14.956375938, 16], False, 3, [1, 1, 1, 1, 1, 1, 1, 1, 1, 1, 1, 1, 1, 1, 1, 1, 1, 1, 1], False), False)
sketch4.addGeometry(Part.BSplineCurve([App.Vector(119.798272, -75.326897, 0), App.Vector(119.793114, -74.890841, 0), App.Vector(119.782884, -74.025842, 0), App.Vector(119.647338, -72.74706, 0), App.Vector(119.453184, -71.496662, 0), App.Vector(119.173378, -70.279556, 0), App.Vector(118.812733, -69.095432, 0), App.Vector(118.368038, -67.945402, 0), App.Vector(117.843656, -66.825183, 0), App.Vector(117.241836, -65.737542, 0), App.Vector(116.565347, -64.693867, 0), App.Vector(115.826135, -63.696121, 0), App.Vector(115.011438, -62.763043, 0), App.Vector(114.144532, -61.871597, 0), App.Vector(113.203763, -61.040796, 0), App.Vector(112.193394, -60.270363, 0), App.Vector(111.125689, -59.541707, 0), App.Vector(109.995196, -58.884378, 0), App.Vector(108.828488, -58.277338, 0), App.Vector(107.631309, -57.757254, 0), App.Vector(106.41722, -57.315327, 0), App.Vector(105.18931, -56.938394, 0), App.Vector(103.937244, -56.663148, 0), App.Vector(102.66948, -56.467359, 0), App.Vector(101.387774, -56.331094, 0), App.Vector(100.52579, -56.3207, 0), App.Vector(100.092743, -56.315479, 0)], [4, 1, 1, 1, 1, 1, 1, 1, 1, 1, 1, 1, 1, 1, 1, 1, 1, 1, 1, 1, 1, 1, 1, 1, 4], [0, 1.02996197, 2.043119294, 3.035359645, 4.018872909, 4.991431989, 5.957985074, 6.929999688, 7.912076566, 8.892894881, 9.867085534, 10.843653904, 11.817741046, 12.803660682, 13.806313499, 14.818574707, 15.856120519, 16.894564902, 17.924820532, 18.937903209, 19.946497019, 20.957711757, 21.963978472, 22.977135795, 24], False, 3, [1, 1, 1, 1, 1, 1, 1, 1, 1, 1, 1, 1, 1, 1, 1, 1, 1, 1, 1, 1, 1, 1, 1, 1, 1, 1, 1], False), False)
sketch4.addGeometry(Part.BSplineCurve([App.Vector(100.092743, -94.392402, 0), App.Vector(100.537722, -94.386288, 0), App.Vector(101.42025, -94.374163, 0), App.Vector(102.732906, -94.252037, 0), App.Vector(104.021915, -94.056199, 0), App.Vector(105.285467, -93.774233, 0), App.Vector(106.522129, -93.421341, 0), App.Vector(107.737062, -93.002099, 0), App.Vector(108.917326, -92.479055, 0), App.Vector(110.077809, -91.901152, 0), App.Vector(111.188618, -91.24235, 0), App.Vector(112.249018, -90.534717, 0), App.Vector(113.23228, -89.750835, 0), App.Vector(114.162997, -88.923891, 0), App.Vector(115.032496, -88.037213, 0), App.Vector(115.834897, -87.091953, 0), App.Vector(116.567499, -86.082145, 0), App.Vector(117.242057, -85.02419, 0), App.Vector(117.843813, -83.918524, 0), App.Vector(118.368116, -82.780285, 0), App.Vector(118.812923, -81.612276, 0), App.Vector(119.172004, -80.412813, 0), App.Vector(119.453389, -79.184174, 0), App.Vector(119.647273, -77.924713, 0), App.Vector(119.782896, -76.63695, 0), App.Vector(119.793118, -75.765957, 0), App.Vector(119.798272, -75.326897, 0)], [4, 1, 1, 1, 1, 1, 1, 1, 1, 1, 1, 1, 1, 1, 1, 1, 1, 1, 1, 1, 1, 1, 1, 1, 4], [0, 1.047197238, 2.076906641, 3.100256066, 4.114471768, 5.12198147, 6.126382909, 7.136867548, 8.15857795, 9.17633901, 10.174870724, 11.156907918, 12.133735059, 13.104061851, 14.077631395, 15.04955518, 16.038496417, 17.029181396, 18.010275684, 18.986308667, 19.968651475, 20.955262928, 21.950658345, 22.966943676, 24], False, 3, [1, 1, 1, 1, 1, 1, 1, 1, 1, 1, 1, 1, 1, 1, 1, 1, 1, 1, 1, 1, 1, 1, 1, 1, 1, 1, 1], False), False)
sketch4.addGeometry(Part.BSplineCurve([App.Vector(80.567502, -75.534229, 0), App.Vector(80.583893, -76.184315, 0), App.Vector(80.61614, -77.463234, 0), App.Vector(80.898451, -79.337396, 0), App.Vector(81.333305, -81.138531, 0), App.Vector(81.974329, -82.856784, 0), App.Vector(82.775979, -84.506925, 0), App.Vector(83.766325, -86.074315, 0), App.Vector(84.939656, -87.559378, 0), App.Vector(86.272473, -88.951745, 0), App.Vector(87.729479, -90.22262, 0), App.Vector(89.276614, -91.33815, 0), App.Vector(90.897304, -92.281996, 0), App.Vector(92.595773, -93.050918, 0), App.Vector(94.362956, -93.660215, 0), App.Vector(96.210239, -94.077797, 0), App.Vector(98.125316, -94.352624, 0), App.Vector(99.43071, -94.379017, 0), App.Vector(100.092743, -94.392402, 0)], [4, 1, 1, 1, 1, 1, 1, 1, 1, 1, 1, 1, 1, 1, 1, 1, 4], [0, 1.032063989, 2.030389145, 3.003944642, 3.970395727, 4.937377036, 5.913328081, 6.909231446, 7.93887556, 8.970685674, 9.976071282, 10.964166581, 11.944589148, 12.933237628, 13.927779006, 14.949070134, 16], False, 3, [1, 1, 1, 1, 1, 1, 1, 1, 1, 1, 1, 1, 1, 1, 1, 1, 1, 1, 1], False), False)
sketch4.addGeometry(Part.BSplineCurve([App.Vector(100.092743, -56.315479, 0), App.Vector(99.665697, -56.320685, 0), App.Vector(98.815689, -56.331046, 0), App.Vector(97.552031, -56.467534, 0), App.Vector(96.304992, -56.662061, 0), App.Vector(95.074314, -56.939538, 0), App.Vector(93.865148, -57.31759, 0), App.Vector(92.666221, -57.752687, 0), App.Vector(91.488468, -58.282673, 0), App.Vector(90.335775, -58.881465, 0), App.Vector(89.218296, -59.544237, 0), App.Vector(88.163847, -60.276731, 0), App.Vector(87.169698, -61.061769, 0), App.Vector(86.238285, -61.901184, 0), App.Vector(85.372341, -62.799251, 0), App.Vector(84.554824, -63.742353, 0), App.Vector(83.818501, -64.757449, 0), App.Vector(83.143686, -65.817012, 0), App.Vector(82.539814, -66.91966, 0), App.Vector(82.002831, -68.053787, 0), App.Vector(81.563579, -69.228643, 0), App.Vector(81.205349, -70.431482, 0), App.Vector(80.908351, -71.6604, 0), App.Vector(80.720201, -72.924718, 0), App.Vector(80.582213, -74.218084, 0), App.Vector(80.572444, -75.092136, 0), App.Vector(80.567502, -75.534229, 0)], [4, 1, 1, 1, 1, 1, 1, 1, 1, 1, 1, 1, 1, 1, 1, 1, 1, 1, 1, 1, 1, 1, 1, 1, 4], [0, 1.008559885, 2.007477868, 2.99961109, 3.989939068, 4.984837346, 5.991145699, 7.001802488, 8.033829008, 9.059044045, 10.069351652, 11.065060232, 12.050310815, 13.029377138, 14.011219647, 14.996725999, 15.989392538, 16.977580475, 17.965360261, 18.951710183, 19.937753436, 20.929683414, 21.935841486, 22.955955122, 24], False, 3, [1, 1, 1, 1, 1, 1, 1, 1, 1, 1, 1, 1, 1, 1, 1, 1, 1, 1, 1, 1, 1, 1, 1, 1, 1, 1, 1], False), False)
sketch4.addGeometry(Part.LineSegment(App.Vector(137.105964, -52.85394, 0), App.Vector(133.067502, -52.85394, 0)), False)
sketch4.addGeometry(Part.LineSegment(App.Vector(133.067502, -52.85394, 0), App.Vector(133.067502, -97.85394, 0)), False)
sketch4.addGeometry(Part.LineSegment(App.Vector(133.067502, -97.85394, 0), App.Vector(154.413656, -97.85394, 0)), False)
sketch4.addGeometry(Part.LineSegment(App.Vector(154.413656, -97.85394, 0), App.Vector(154.413656, -93.238556, 0)), False)
sketch4.addGeometry(Part.LineSegment(App.Vector(154.413656, -93.238556, 0), App.Vector(137.105964, -93.238556, 0)), False)
sketch4.addGeometry(Part.LineSegment(App.Vector(137.105964, -93.238556, 0), App.Vector(137.105964, -52.85394, 0)), False)
sketch4.addConstraint(Sketcher.Constraint("Block", 1))
sketch4.addConstraint(Sketcher.Constraint("Block", 2))
sketch4.addConstraint(Sketcher.Constraint("Block", 3))
sketch4.addConstraint(Sketcher.Constraint("Block", 4))
sketch4.addConstraint(Sketcher.Constraint("Block", 5))
sketch4.addConstraint(Sketcher.Constraint("Block", 6))
sketch4.addConstraint(Sketcher.Constraint("Block", 7))
sketch4.addConstraint(Sketcher.Constraint("Block", 9))
sketch4.addConstraint(Sketcher.Constraint("Block", 10))
sketch4.addConstraint(Sketcher.Constraint("Block", 11))
sketch4.addConstraint(Sketcher.Constraint("Block", 12))
sketch4.addConstraint(Sketcher.Constraint("Block", 13))
sketch4.addConstraint(Sketcher.Constraint("Block", 14))
sketch4.addConstraint(Sketcher.Constraint("Block", 15))
sketch4.addConstraint(Sketcher.Constraint("Block", 16))
sketch4.addConstraint(Sketcher.Constraint("Block", 17))
sketch4.addConstraint(Sketcher.Constraint("Block", 18))
sketch4.addConstraint(Sketcher.Constraint("Block", 19))
sketch4.addConstraint(Sketcher.Constraint("Block", 20))
sketch4.addConstraint(Sketcher.Constraint("Block", 21))
sketch4.addConstraint(Sketcher.Constraint("Block", 22))
sketch4.addConstraint(Sketcher.Constraint("Block", 23))
sketch4.addConstraint(Sketcher.Constraint("Block", 24))
sketch4.addConstraint(Sketcher.Constraint("Coincident", 0, 2, 1, 2))
sketch4.addConstraint(Sketcher.Constraint("Coincident", 7, 1, 8, 1))
sketch4.addConstraint(Sketcher.Constraint("Coincident", 8, 2, 9, 2))
sketch4.addConstraint(Sketcher.Constraint("Coincident", 16, 1, 0, 1))
sketch4.addConstraint(Sketcher.Constraint("Coincident", 25, 2, 26, 1))
sketch4.addConstraint(Sketcher.Constraint("Coincident", 26, 2, 27, 1))
sketch4.addConstraint(Sketcher.Constraint("Coincident", 27, 2, 28, 1))
sketch4.addConstraint(Sketcher.Constraint("Coincident", 28, 2, 29, 1))
sketch4.addConstraint(Sketcher.Constraint("Coincident", 29, 2, 30, 1))
sketch4.addConstraint(Sketcher.Constraint("Coincident", 30, 2, 25, 1))
sketch4.addConstraint(Sketcher.Constraint("Horizontal", 25))
sketch4.addConstraint(Sketcher.Constraint("Vertical", 26))
sketch4.addConstraint(Sketcher.Constraint("Horizontal", 27))
sketch4.addConstraint(Sketcher.Constraint("Vertical", 28))
sketch4.addConstraint(Sketcher.Constraint("Horizontal", 29))
sketch4.addConstraint(Sketcher.Constraint("Vertical", 30))
sketch4.addConstraint(Sketcher.Constraint("DistanceY", 26, 2, 26, 1, Q("45 mm")))
sketch4.addConstraint(Sketcher.Constraint("DistanceX", 0, 2, 25, 2, Q("90 mm")))
sketch4.addConstraint(Sketcher.Constraint("DistanceX", 25, 2, 25, 1, Q("4.038462 mm")))
sketch4.addConstraint(Sketcher.Constraint("DistanceX", 27, 1, 27, 2, Q("21.346154 mm")))
sketch4.addConstraint(Sketcher.Constraint("DistanceY", 28, 1, 28, 2, Q("4.615385 mm")))
sketch4.addConstraint(Sketcher.Constraint("DistanceY", 25, 2, -1, 1, Q("52.85394 mm")))
pocket3 = body.newObject("PartDesign::Pocket", "Pocket002")
pocket3.Profile = sketch4
pocket3.Length = 1.5

doc.recompute()
